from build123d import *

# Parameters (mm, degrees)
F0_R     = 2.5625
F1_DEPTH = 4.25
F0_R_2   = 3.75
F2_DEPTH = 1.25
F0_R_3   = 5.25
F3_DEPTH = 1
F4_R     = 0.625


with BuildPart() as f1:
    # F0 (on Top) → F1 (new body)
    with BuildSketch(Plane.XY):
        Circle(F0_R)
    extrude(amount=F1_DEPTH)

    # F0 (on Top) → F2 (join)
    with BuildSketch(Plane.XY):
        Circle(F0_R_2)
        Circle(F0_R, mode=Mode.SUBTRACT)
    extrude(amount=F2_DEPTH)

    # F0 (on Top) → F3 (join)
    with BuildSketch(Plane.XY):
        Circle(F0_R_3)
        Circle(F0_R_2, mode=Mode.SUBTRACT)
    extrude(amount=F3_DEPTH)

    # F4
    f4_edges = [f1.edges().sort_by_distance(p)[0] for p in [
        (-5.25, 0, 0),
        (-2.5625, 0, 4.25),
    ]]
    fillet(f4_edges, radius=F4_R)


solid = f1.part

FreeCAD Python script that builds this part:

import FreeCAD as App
import Part
import Sketcher
Q = App.Units.Quantity


def edges_at(feature, points):
    """Names of the edges that pass closest to the given points."""
    edges = feature.Shape.Edges
    near = lambda p: min(range(len(edges)), key=lambda i: edges[i].distToShape(Part.Vertex(*p))[0])
    return sorted({f"Edge{near(p) + 1}" for p in points})

doc = App.newDocument("Part")
body = doc.addObject("PartDesign::Body", "Body")

sketch1 = body.newObject("Sketcher::SketchObject", "Sketch")
sketch1.AttachmentSupport = (doc.getObject("XY_Plane"), [""])
sketch1.MapMode = "FlatFace"
sketch1.addGeometry(Part.Circle(App.Vector(0, 0, 0), App.Vector(0, 0, 1), 2.6), False)
sketch1.addConstraint([
    Sketcher.Constraint("Coincident", 0, 3, -1, 1),
    Sketcher.Constraint("Diameter", 0, Q("5.125 mm")),
])
pad1 = body.newObject("PartDesign::Pad", "Pad")
pad1.Profile = sketch1
pad1.Length = 4.25

sketch2 = body.newObject("Sketcher::SketchObject", "Sketch001")
sketch2.AttachmentSupport = (doc.getObject("XY_Plane"), [""])
sketch2.MapMode = "FlatFace"
sketch2.addGeometry([
    Part.Circle(App.Vector(0, 0, 0), App.Vector(0, 0, 1), 3.8),
    Part.Circle(App.Vector(0, 0, 0), App.Vector(0, 0, 1), 2.6),
], False)
sketch2.addConstraint([
    Sketcher.Constraint("Coincident", 0, 3, -1, 1),
    Sketcher.Constraint("Coincident", 1, 3, -1, 1),
    Sketcher.Constraint("Diameter", 0, Q("7.5 mm")),
    Sketcher.Constraint("Diameter", 1, Q("5.125 mm")),
])
pad2 = body.newObject("PartDesign::Pad", "Pad001")
pad2.Profile = sketch2
pad2.Length = 1.25

sketch3 = body.newObject("Sketcher::SketchObject", "Sketch002")
sketch3.AttachmentSupport = (doc.getObject("XY_Plane"), [""])
sketch3.MapMode = "FlatFace"
sketch3.addGeometry([
    Part.Circle(App.Vector(0, 0, 0), App.Vector(0, 0, 1), 5.2),
    Part.Circle(App.Vector(0, 0, 0), App.Vector(0, 0, 1), 3.8),
], False)
sketch3.addConstraint([
    Sketcher.Constraint("Coincident", 0, 3, -1, 1),
    Sketcher.Constraint("Coincident", 1, 3, -1, 1),
    Sketcher.Constraint("Diameter", 0, Q("10.5 mm")),
    Sketcher.Constraint("Diameter", 1, Q("7.5 mm")),
])
pad3 = body.newObject("PartDesign::Pad", "Pad002")
pad3.Profile = sketch3
pad3.Length = 1
doc.recompute()

fillet = body.newObject("PartDesign::Fillet", "Fillet")
fillet.Base = (pad3, edges_at(pad3, [(-5.25, 0, 0), (-2.562, 0, 4.25)]))
fillet.Radius = 0.625

doc.recompute()
